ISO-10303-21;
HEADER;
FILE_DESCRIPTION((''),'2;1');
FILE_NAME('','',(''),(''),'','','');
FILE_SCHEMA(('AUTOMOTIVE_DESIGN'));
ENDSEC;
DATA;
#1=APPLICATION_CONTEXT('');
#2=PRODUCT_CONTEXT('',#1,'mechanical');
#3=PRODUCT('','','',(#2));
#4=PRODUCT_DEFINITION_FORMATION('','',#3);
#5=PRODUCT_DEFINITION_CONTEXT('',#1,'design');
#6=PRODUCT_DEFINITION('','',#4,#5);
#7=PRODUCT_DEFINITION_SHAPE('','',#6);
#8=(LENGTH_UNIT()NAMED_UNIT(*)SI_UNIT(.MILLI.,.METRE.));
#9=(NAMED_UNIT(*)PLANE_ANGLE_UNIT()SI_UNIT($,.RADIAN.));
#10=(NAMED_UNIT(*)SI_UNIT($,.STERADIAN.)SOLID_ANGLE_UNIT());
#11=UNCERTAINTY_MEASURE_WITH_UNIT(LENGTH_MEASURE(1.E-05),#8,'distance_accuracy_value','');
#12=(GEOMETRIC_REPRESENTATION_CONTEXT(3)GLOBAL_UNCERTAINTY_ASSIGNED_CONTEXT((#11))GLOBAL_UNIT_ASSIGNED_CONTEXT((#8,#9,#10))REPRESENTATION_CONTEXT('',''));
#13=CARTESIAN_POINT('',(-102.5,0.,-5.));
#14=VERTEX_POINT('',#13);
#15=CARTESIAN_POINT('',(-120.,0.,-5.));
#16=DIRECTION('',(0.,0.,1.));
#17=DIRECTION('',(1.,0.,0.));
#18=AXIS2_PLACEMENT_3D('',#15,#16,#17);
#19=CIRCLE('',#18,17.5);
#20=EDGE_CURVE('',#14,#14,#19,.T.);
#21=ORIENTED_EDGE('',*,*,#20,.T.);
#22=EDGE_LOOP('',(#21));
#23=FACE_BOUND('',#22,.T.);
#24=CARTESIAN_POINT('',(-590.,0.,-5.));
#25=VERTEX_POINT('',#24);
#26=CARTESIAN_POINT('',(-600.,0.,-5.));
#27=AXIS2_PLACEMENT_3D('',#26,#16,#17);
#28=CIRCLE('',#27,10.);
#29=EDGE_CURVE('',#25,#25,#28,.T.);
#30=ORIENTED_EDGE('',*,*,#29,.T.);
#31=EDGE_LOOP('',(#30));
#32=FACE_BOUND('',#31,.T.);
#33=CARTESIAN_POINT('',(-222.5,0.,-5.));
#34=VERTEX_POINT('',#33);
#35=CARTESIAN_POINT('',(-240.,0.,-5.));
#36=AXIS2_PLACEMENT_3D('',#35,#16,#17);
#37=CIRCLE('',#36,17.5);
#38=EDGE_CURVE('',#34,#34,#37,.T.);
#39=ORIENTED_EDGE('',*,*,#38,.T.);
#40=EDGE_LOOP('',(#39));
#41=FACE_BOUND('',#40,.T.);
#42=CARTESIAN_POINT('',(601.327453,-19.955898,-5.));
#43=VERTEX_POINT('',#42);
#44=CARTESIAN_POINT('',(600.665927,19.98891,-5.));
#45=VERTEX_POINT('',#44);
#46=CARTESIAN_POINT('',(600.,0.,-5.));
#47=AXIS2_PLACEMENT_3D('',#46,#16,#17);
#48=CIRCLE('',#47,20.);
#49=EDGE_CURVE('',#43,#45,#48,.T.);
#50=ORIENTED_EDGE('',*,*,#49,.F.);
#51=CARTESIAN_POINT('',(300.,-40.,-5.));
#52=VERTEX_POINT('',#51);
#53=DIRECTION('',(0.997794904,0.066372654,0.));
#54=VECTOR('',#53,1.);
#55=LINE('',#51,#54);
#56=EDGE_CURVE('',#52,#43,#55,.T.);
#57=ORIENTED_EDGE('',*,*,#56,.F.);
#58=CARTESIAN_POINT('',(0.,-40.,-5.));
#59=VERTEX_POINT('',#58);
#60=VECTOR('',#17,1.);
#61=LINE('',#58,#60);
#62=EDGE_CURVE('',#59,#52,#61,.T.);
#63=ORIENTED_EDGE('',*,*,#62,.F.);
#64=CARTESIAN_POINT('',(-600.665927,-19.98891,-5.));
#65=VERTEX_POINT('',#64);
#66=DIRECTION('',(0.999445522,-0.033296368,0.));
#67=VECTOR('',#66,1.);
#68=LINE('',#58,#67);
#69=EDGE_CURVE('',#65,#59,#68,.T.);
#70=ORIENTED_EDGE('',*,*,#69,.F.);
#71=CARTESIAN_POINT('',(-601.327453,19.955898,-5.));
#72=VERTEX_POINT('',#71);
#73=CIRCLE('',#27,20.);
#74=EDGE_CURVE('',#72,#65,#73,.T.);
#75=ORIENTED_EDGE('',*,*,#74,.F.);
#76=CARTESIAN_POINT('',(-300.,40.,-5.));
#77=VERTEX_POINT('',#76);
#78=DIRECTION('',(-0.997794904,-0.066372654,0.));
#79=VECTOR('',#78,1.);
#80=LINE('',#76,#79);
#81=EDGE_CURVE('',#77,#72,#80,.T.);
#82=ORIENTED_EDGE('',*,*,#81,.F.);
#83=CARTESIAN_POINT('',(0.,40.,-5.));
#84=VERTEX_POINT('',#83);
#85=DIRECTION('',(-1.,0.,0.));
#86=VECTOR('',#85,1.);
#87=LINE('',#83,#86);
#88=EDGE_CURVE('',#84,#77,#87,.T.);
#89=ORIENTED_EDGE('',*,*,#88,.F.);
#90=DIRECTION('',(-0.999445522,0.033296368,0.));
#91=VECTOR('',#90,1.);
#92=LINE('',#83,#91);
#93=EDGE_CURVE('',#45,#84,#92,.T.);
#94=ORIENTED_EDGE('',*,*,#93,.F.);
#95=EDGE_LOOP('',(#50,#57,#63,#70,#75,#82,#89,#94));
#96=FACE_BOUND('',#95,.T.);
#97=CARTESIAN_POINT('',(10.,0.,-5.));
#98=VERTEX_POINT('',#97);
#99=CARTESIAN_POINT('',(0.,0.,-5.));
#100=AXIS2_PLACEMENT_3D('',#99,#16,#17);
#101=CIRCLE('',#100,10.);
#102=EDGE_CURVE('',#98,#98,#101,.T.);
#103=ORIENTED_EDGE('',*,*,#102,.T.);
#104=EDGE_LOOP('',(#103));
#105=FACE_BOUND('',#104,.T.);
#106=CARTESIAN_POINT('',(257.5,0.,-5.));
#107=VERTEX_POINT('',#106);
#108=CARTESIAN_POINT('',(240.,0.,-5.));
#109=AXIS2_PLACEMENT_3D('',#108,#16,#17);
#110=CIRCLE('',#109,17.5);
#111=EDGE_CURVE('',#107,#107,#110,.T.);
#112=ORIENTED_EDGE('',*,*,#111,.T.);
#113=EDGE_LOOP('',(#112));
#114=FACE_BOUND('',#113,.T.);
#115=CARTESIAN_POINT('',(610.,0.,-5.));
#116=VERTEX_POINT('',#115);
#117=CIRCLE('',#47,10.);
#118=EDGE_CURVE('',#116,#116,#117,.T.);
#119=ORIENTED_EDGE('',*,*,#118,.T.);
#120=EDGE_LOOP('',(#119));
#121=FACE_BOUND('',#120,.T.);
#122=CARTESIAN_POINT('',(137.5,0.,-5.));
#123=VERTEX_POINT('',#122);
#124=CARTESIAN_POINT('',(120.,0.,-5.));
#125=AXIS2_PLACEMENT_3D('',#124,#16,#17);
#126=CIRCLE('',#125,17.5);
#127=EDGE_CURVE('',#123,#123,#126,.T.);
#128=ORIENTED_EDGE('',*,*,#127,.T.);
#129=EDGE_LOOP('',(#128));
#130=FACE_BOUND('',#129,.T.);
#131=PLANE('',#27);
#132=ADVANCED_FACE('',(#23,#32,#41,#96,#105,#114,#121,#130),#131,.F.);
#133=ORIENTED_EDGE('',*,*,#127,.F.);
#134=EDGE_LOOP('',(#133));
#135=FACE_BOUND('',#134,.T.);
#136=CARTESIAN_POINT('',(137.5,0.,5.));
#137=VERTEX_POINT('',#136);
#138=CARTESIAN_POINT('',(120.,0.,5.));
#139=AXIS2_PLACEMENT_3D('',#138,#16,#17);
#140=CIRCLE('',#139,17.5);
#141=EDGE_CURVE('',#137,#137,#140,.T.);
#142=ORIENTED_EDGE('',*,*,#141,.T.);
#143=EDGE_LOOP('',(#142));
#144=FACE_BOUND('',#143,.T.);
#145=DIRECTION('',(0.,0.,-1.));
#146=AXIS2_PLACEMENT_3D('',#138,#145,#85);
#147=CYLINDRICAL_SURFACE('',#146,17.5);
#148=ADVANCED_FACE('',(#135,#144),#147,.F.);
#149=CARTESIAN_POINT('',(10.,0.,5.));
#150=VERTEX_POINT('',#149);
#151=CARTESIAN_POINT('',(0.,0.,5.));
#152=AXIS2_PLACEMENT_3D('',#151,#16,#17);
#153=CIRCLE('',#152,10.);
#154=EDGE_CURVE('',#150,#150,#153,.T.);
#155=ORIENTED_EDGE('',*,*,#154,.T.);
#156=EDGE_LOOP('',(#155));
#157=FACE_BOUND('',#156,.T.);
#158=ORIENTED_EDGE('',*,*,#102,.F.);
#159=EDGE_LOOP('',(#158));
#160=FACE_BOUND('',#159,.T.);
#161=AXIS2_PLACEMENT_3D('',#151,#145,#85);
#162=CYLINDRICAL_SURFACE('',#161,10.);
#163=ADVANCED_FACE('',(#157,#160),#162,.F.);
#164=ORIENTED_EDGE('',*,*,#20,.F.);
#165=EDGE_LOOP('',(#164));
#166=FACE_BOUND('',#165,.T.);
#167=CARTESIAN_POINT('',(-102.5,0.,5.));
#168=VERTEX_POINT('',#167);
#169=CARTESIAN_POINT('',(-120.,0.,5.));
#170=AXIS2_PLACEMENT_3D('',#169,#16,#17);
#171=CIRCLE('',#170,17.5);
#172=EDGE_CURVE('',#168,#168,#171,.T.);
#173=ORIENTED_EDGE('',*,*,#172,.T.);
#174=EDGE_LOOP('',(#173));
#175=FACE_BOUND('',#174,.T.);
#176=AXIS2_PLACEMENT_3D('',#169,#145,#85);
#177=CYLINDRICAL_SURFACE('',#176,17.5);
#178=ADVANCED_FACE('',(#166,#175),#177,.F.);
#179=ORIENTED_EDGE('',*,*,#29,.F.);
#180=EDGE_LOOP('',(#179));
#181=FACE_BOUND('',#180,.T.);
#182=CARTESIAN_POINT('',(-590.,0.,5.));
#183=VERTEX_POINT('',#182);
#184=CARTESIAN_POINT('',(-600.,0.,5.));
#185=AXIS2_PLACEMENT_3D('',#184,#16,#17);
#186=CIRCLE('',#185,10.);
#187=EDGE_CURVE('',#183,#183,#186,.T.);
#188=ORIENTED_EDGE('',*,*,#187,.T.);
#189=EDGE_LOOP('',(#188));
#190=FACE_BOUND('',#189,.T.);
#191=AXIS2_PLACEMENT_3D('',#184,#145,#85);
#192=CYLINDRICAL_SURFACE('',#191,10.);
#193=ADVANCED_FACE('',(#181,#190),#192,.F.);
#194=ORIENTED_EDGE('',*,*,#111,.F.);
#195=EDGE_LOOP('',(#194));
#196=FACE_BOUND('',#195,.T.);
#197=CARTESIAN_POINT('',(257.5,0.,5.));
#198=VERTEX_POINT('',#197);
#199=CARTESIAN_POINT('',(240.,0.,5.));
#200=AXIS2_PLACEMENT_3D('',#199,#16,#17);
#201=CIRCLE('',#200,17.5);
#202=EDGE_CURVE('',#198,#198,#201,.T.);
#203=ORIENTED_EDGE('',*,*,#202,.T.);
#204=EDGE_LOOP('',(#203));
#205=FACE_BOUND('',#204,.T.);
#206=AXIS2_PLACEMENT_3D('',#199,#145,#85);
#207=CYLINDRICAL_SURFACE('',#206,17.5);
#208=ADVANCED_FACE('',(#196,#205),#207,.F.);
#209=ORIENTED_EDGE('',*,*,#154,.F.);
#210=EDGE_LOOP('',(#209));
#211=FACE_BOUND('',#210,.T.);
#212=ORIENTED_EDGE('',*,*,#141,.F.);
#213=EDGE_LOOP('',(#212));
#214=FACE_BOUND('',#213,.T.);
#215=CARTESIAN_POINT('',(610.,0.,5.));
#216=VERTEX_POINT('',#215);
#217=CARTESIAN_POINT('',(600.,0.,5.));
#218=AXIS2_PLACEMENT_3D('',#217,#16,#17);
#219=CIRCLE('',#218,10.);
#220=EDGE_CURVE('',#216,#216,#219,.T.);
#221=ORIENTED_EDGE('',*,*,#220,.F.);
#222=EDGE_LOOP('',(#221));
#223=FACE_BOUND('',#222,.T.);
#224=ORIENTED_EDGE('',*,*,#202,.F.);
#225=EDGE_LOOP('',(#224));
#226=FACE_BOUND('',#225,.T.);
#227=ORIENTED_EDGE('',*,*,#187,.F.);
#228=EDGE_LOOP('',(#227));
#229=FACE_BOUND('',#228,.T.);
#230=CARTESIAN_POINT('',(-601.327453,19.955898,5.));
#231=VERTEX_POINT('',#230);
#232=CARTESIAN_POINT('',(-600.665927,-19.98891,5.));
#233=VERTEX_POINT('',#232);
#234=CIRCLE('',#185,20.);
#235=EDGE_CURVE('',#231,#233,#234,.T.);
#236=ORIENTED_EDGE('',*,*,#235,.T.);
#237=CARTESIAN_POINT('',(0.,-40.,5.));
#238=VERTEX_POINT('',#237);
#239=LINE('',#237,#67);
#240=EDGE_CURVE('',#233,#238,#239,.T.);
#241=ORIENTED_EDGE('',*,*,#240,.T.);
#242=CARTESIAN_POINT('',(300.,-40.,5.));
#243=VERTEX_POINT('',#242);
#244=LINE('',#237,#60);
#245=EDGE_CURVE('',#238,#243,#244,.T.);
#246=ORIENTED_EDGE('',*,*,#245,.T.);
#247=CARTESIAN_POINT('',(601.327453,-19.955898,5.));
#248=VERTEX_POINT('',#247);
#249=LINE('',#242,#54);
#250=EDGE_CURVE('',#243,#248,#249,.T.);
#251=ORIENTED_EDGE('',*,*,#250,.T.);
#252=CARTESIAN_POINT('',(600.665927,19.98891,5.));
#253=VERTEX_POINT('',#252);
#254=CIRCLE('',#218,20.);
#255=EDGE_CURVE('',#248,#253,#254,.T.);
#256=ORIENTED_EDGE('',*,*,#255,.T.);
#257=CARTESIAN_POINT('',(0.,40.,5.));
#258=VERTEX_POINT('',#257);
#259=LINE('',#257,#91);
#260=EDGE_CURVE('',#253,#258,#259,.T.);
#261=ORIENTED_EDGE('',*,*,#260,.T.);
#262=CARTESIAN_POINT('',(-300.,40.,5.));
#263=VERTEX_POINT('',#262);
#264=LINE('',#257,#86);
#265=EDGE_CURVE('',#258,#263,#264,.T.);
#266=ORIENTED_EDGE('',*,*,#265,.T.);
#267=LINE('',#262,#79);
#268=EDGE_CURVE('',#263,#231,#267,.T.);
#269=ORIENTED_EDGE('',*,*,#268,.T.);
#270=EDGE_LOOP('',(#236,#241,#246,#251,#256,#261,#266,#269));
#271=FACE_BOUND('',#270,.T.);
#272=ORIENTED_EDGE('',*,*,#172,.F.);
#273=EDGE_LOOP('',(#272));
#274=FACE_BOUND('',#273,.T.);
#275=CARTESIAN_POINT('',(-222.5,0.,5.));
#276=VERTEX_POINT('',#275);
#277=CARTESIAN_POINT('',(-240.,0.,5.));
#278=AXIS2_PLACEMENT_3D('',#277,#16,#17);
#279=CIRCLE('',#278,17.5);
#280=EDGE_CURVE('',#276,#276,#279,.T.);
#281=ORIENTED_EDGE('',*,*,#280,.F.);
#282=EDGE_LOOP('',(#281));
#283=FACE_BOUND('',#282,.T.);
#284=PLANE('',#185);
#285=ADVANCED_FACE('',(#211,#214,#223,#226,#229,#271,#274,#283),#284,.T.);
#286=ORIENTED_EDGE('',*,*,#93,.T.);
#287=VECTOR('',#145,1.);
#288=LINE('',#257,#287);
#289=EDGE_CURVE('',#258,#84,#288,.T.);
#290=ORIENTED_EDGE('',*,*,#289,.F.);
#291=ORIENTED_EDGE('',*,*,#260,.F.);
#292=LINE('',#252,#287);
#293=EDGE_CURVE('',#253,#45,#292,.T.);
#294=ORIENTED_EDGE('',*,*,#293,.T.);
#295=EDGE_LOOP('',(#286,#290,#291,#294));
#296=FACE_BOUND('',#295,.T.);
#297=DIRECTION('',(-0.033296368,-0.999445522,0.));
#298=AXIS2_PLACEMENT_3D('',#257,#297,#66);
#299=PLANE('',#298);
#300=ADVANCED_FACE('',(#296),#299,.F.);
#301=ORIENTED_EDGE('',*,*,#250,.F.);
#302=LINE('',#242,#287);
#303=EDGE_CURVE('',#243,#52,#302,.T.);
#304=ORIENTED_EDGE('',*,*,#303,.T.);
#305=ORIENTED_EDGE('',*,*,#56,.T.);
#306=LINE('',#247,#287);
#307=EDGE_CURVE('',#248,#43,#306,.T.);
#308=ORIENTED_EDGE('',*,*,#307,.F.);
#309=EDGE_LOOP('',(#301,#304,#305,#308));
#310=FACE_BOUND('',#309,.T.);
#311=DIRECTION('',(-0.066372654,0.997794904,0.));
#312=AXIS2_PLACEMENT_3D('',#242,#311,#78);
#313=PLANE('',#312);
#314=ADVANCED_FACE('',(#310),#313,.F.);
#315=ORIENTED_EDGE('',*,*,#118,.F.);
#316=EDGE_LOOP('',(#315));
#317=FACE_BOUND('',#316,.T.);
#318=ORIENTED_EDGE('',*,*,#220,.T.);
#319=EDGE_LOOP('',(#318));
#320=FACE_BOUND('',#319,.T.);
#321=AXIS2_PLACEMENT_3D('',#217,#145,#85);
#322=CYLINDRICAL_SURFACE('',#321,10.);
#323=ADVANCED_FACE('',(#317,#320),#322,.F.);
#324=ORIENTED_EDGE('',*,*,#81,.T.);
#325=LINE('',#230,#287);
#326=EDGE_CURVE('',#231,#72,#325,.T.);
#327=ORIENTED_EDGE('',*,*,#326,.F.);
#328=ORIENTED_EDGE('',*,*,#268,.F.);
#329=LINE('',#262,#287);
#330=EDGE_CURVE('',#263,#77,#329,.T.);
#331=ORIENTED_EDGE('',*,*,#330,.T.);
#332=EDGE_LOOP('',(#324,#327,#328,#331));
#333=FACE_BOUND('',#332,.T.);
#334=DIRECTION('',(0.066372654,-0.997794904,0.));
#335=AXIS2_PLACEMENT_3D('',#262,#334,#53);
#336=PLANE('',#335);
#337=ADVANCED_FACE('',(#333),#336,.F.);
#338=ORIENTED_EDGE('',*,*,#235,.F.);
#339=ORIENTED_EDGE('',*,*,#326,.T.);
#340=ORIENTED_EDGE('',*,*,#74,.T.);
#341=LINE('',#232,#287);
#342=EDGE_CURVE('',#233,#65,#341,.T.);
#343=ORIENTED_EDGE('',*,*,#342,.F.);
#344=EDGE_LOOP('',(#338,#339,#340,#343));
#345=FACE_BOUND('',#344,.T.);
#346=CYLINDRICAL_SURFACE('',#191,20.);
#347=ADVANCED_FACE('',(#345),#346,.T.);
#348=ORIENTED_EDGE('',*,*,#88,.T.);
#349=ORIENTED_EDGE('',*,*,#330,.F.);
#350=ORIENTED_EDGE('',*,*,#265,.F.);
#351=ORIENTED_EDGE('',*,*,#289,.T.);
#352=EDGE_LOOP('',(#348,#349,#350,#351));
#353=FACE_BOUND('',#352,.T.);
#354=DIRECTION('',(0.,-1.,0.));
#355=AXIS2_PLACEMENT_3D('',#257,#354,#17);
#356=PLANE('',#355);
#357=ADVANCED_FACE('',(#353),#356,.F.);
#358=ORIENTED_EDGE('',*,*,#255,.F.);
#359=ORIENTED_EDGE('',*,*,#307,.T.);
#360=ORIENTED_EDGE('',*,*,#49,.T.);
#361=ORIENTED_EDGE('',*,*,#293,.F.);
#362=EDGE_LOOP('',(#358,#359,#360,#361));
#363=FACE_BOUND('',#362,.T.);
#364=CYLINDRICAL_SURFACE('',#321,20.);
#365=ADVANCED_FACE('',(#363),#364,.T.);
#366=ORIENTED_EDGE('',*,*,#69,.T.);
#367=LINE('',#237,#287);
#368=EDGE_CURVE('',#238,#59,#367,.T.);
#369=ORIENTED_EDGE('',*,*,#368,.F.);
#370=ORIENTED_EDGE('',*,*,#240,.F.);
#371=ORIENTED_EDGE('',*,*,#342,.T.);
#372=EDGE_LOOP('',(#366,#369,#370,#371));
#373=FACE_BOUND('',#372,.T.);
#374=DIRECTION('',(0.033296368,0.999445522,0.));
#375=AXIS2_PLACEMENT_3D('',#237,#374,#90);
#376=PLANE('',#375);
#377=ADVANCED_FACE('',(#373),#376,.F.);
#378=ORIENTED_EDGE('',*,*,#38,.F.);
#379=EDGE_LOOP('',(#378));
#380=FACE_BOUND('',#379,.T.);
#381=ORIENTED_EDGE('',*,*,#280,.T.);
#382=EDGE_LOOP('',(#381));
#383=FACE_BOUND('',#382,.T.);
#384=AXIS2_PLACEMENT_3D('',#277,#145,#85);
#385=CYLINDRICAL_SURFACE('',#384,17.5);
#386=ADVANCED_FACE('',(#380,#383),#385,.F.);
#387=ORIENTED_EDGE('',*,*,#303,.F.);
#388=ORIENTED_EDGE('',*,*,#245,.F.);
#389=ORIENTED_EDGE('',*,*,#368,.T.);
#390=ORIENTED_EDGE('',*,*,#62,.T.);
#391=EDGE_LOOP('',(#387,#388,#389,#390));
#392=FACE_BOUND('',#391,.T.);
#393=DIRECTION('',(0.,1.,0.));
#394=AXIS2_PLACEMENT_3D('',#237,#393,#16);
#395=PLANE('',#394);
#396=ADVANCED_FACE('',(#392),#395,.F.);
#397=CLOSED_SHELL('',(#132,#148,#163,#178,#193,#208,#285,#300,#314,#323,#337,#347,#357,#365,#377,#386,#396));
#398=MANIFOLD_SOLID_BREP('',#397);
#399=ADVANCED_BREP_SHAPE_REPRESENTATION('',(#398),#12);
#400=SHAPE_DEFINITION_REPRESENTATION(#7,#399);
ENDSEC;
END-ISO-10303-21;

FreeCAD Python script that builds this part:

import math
import FreeCAD as App
import Part
import Sketcher
from FreeCAD import Vector

doc = App.newDocument("Part")
body = doc.addObject("PartDesign::Body", "Body")

# Sketch on XY plane
sketch1 = doc.addObject("Sketcher::SketchObject", "Sketch")
body.addObject(sketch1)
sketch1.AttachmentSupport = (doc.XY_Plane, [""])
sketch1.MapMode = "FlatFace"
sketch1.addGeometry(Part.LineSegment(Vector(0, 40, 0), Vector(-300, 40, 0)), False)
sketch1.addGeometry(Part.LineSegment(Vector(-300, 40, 0), Vector(-601, 20, 0)), False)
sketch1.addGeometry(Part.ArcOfCircle(Part.Circle(Vector(-600, 0, 0), Vector(0, 0, 1), 20), math.radians(94), math.radians(268)), False)
sketch1.addGeometry(Part.LineSegment(Vector(-601, -20, 0), Vector(0, -40, 0)), False)
sketch1.addGeometry(Part.LineSegment(Vector(0, -40, 0), Vector(300, -40, 0)), False)
sketch1.addGeometry(Part.LineSegment(Vector(300, -40, 0), Vector(601, -20, 0)), False)
sketch1.addGeometry(Part.ArcOfCircle(Part.Circle(Vector(600, 0, 0), Vector(0, 0, 1), 20), math.radians(-86), math.radians(88)), False)
sketch1.addGeometry(Part.LineSegment(Vector(601, 20, 0), Vector(0, 40, 0)), False)
sketch1.addGeometry(Part.Circle(Vector(-600, 0, 0), Vector(0, 0, 1), 10), False)
sketch1.addGeometry(Part.Circle(Vector(-240, 0, 0), Vector(0, 0, 1), 18), False)
sketch1.addGeometry(Part.Circle(Vector(-120, 0, 0), Vector(0, 0, 1), 18), False)
sketch1.addGeometry(Part.Circle(Vector(0, 0, 0), Vector(0, 0, 1), 10), False)
sketch1.addGeometry(Part.Circle(Vector(120, 0, 0), Vector(0, 0, 1), 18), False)
sketch1.addGeometry(Part.Circle(Vector(240, 0, 0), Vector(0, 0, 1), 18), False)
sketch1.addGeometry(Part.Circle(Vector(600, 0, 0), Vector(0, 0, 1), 10), False)
sketch1.addConstraint(Sketcher.Constraint("Coincident", 0, 2, 1, 1))
sketch1.addConstraint(Sketcher.Constraint("Tangent", 1, 2, 2, 1))
sketch1.addConstraint(Sketcher.Constraint("Tangent", 2, 2, 3, 1))
sketch1.addConstraint(Sketcher.Constraint("Coincident", 3, 2, 4, 1))
sketch1.addConstraint(Sketcher.Constraint("Coincident", 4, 2, 5, 1))
sketch1.addConstraint(Sketcher.Constraint("Tangent", 5, 2, 6, 1))
sketch1.addConstraint(Sketcher.Constraint("Tangent", 6, 2, 7, 1))
sketch1.addConstraint(Sketcher.Constraint("Coincident", 7, 2, 0, 1))
sketch1.addConstraint(Sketcher.Constraint("Horizontal", 0))
sketch1.addConstraint(Sketcher.Constraint("Horizontal", 4))
sketch1.addConstraint(Sketcher.Constraint("Coincident", 11, 3, -1, 1))
sketch1.addConstraint(Sketcher.Constraint("Coincident", 8, 3, 2, 3))
sketch1.addConstraint(Sketcher.Constraint("Coincident", 14, 3, 6, 3))
sketch1.addConstraint(Sketcher.Constraint("Equal", 2, 6))
sketch1.addConstraint(Sketcher.Constraint("Equal", 9, 10))
sketch1.addConstraint(Sketcher.Constraint("Equal", 8, 11))
sketch1.addConstraint(Sketcher.Constraint("Equal", 10, 12))
sketch1.addConstraint(Sketcher.Constraint("Equal", 12, 13))
sketch1.addConstraint(Sketcher.Constraint("Equal", 11, 14))
sketch1.addConstraint(Sketcher.Constraint("Symmetric", 2, 3, 6, 3, -1, 1))
sketch1.addConstraint(Sketcher.Constraint("Symmetric", 10, 3, 12, 3, -1, 1))
sketch1.addConstraint(Sketcher.Constraint("Symmetric", 9, 3, 13, 3, -1, 1))
sketch1.addConstraint(Sketcher.Constraint("Symmetric", 0, 2, 4, 2, -1, 1))
sketch1.addConstraint(Sketcher.Constraint("PointOnObject", 2, 3, -1))
sketch1.addConstraint(Sketcher.Constraint("PointOnObject", 9, 3, -1))
sketch1.addConstraint(Sketcher.Constraint("PointOnObject", 10, 3, -1))
sketch1.addConstraint(Sketcher.Constraint("PointOnObject", 3, 2, -2))
sketch1.addConstraint(Sketcher.Constraint("PointOnObject", 7, 2, -2))
sketch1.addConstraint(Sketcher.Constraint("Diameter", 8, 20.0))
sketch1.addConstraint(Sketcher.Constraint("Diameter", 9, 35.0))
sketch1.addConstraint(Sketcher.Constraint("Radius", 2, 20.0))
sketch1.addConstraint(Sketcher.Constraint("DistanceX", 0, 2, 0, 1, 300.0))
sketch1.addConstraint(Sketcher.Constraint("DistanceX", 2, 3, -1, 1, 600.0))
sketch1.addConstraint(Sketcher.Constraint("DistanceX", 9, 3, -1, 1, 240.0))
sketch1.addConstraint(Sketcher.Constraint("DistanceX", 10, 3, -1, 1, 120.0))
sketch1.addConstraint(Sketcher.Constraint("DistanceY", -1, 1, 0, 2, 40.0))
pad1 = doc.addObject("PartDesign::Pad", "Pad")
body.addObject(pad1)
pad1.Profile = sketch1
pad1.Length = 10
pad1.Midplane = True

doc.recompute()
